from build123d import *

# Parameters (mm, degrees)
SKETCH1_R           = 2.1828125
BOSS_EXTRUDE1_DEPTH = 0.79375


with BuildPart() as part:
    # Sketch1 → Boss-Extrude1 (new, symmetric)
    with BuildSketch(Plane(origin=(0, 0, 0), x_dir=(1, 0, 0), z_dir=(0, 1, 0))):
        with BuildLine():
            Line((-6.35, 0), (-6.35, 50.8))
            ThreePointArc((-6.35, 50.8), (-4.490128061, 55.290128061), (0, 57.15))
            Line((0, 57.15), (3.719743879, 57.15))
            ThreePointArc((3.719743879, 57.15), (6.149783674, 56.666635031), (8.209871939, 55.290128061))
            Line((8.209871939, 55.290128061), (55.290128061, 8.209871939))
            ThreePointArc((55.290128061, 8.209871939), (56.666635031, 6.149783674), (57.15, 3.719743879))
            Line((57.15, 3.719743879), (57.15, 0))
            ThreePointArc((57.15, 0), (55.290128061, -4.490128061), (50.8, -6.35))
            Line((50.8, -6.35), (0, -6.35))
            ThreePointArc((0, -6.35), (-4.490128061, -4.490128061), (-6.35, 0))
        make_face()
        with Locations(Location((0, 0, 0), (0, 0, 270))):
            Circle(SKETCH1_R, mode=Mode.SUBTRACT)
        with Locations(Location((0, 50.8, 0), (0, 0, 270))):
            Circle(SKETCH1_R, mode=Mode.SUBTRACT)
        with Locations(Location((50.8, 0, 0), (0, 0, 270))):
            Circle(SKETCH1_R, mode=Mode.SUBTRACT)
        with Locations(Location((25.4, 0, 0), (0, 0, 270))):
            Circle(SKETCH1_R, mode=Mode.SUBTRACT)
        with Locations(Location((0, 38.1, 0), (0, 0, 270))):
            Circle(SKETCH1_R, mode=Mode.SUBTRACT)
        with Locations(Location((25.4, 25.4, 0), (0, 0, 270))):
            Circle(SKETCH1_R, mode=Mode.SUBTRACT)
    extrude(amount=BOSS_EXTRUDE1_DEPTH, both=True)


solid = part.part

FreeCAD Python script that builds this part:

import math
import FreeCAD as App
import Part
import Sketcher

V = App.Vector
Q = App.Units.Quantity

doc = App.newDocument("Part")
body = doc.addObject("PartDesign::Body", "Body")

# Sketch on XZ plane
sketch1 = doc.addObject("Sketcher::SketchObject", "Sketch")
body.addObject(sketch1)
sketch1.AttachmentSupport = (doc.XZ_Plane, [""])
sketch1.MapMode = "FlatFace"
sketch1.addGeometry([
    Part.LineSegment(V(-6.3, -50.8, 0), V(-6.3, 0, 0)),  # 0
    Part.ArcOfCircle(Part.Circle(V(0, 0, 0), V(0, 0, 1), 6.3), math.radians(90), math.radians(180)),  # 1
    Part.LineSegment(V(0, 6.3, 0), V(50.8, 6.3, 0)),  # 2
    Part.ArcOfCircle(Part.Circle(V(50.8, 0, 0), V(0, 0, 1), 6.3), math.radians(0), math.radians(90)),  # 3
    Part.LineSegment(V(57.1, 0, 0), V(57.1, -3.7, 0)),  # 4
    Part.ArcOfCircle(Part.Circle(V(50.8, -3.7, 0), V(0, 0, 1), 6.4), math.radians(-45), math.radians(0)),  # 5
    Part.LineSegment(V(55.3, -8.2, 0), V(8.2, -55.3, 0)),  # 6
    Part.ArcOfCircle(Part.Circle(V(3.7, -50.8, 0), V(0, 0, 1), 6.4), math.radians(-90), math.radians(-45)),  # 7
    Part.LineSegment(V(3.7, -57.1, 0), V(0, -57.1, 0)),  # 8
    Part.ArcOfCircle(Part.Circle(V(0, -50.8, 0), V(0, 0, 1), 6.3), math.radians(180), math.radians(270)),  # 9
    Part.Circle(V(50.8, 0, 0), V(0, 0, 1), 2.2),  # 10
    Part.Circle(V(25.4, 0, 0), V(0, 0, 1), 2.2),  # 11
    Part.Circle(V(0, 0, 0), V(0, 0, 1), 2.2),  # 12
    Part.Circle(V(25.4, -25.4, 0), V(0, 0, 1), 2.2),  # 13
    Part.Circle(V(0, -38.1, 0), V(0, 0, 1), 2.2),  # 14
    Part.Circle(V(0, -50.8, 0), V(0, 0, 1), 2.2),  # 15
], False)
sketch1.addConstraint([
    Sketcher.Constraint("Tangent", 0, 2, 1, 2),
    Sketcher.Constraint("Tangent", 1, 1, 2, 1),
    Sketcher.Constraint("Tangent", 2, 2, 3, 2),
    Sketcher.Constraint("Tangent", 3, 1, 4, 1),
    Sketcher.Constraint("Tangent", 4, 2, 5, 2),
    Sketcher.Constraint("Tangent", 5, 1, 6, 1),
    Sketcher.Constraint("Tangent", 6, 2, 7, 2),
    Sketcher.Constraint("Tangent", 7, 1, 8, 1),
    Sketcher.Constraint("Tangent", 8, 2, 9, 2),
    Sketcher.Constraint("Tangent", 9, 1, 0, 1),
    Sketcher.Constraint("Vertical", 0),
    Sketcher.Constraint("Horizontal", 2),
    Sketcher.Constraint("Vertical", 4),
    Sketcher.Constraint("Horizontal", 8),
    Sketcher.Constraint("Coincident", 1, 3, -1, 1),
    Sketcher.Constraint("Coincident", 12, 3, -1, 1),
    Sketcher.Constraint("Coincident", 10, 3, 3, 3),
    Sketcher.Constraint("Coincident", 15, 3, 9, 3),
    Sketcher.Constraint("Equal", 1, 3),
    Sketcher.Constraint("Equal", 3, 5),
    Sketcher.Constraint("Equal", 5, 7),
    Sketcher.Constraint("Equal", 7, 9),
    Sketcher.Constraint("Equal", 10, 11),
    Sketcher.Constraint("Equal", 11, 12),
    Sketcher.Constraint("Equal", 12, 13),
    Sketcher.Constraint("Equal", 13, 14),
    Sketcher.Constraint("Equal", 14, 15),
    Sketcher.Constraint("PointOnObject", 11, 3, -1),
    Sketcher.Constraint("PointOnObject", 14, 3, -2),
    Sketcher.Constraint("Vertical", 11, 3, 13, 3),
    Sketcher.Constraint("Equal", 2, 0),
    Sketcher.Constraint("Equal", 8, 4),
    Sketcher.Constraint("DistanceX", 2, 1, 2, 2, Q("2 in")),
    Sketcher.Constraint("Radius", 1, Q("0.25 in")),
    Sketcher.Constraint("Diameter", 10, Q("0.171875 in")),
    Sketcher.Constraint("DistanceX", -1, 1, 11, 3, Q("1 in")),
    Sketcher.Constraint("DistanceY", 13, 3, -1, 1, Q("1 in")),
    Sketcher.Constraint("DistanceY", 14, 3, -1, 1, Q("1.5 in")),
    Sketcher.Constraint("DistanceX", 8, 2, 8, 1, 3.719744),
])
pad1 = doc.addObject("PartDesign::Pad", "Pad")
body.addObject(pad1)
pad1.Profile = sketch1
pad1.Length = Q("0.0625 in")
pad1.Midplane = True

doc.recompute()
